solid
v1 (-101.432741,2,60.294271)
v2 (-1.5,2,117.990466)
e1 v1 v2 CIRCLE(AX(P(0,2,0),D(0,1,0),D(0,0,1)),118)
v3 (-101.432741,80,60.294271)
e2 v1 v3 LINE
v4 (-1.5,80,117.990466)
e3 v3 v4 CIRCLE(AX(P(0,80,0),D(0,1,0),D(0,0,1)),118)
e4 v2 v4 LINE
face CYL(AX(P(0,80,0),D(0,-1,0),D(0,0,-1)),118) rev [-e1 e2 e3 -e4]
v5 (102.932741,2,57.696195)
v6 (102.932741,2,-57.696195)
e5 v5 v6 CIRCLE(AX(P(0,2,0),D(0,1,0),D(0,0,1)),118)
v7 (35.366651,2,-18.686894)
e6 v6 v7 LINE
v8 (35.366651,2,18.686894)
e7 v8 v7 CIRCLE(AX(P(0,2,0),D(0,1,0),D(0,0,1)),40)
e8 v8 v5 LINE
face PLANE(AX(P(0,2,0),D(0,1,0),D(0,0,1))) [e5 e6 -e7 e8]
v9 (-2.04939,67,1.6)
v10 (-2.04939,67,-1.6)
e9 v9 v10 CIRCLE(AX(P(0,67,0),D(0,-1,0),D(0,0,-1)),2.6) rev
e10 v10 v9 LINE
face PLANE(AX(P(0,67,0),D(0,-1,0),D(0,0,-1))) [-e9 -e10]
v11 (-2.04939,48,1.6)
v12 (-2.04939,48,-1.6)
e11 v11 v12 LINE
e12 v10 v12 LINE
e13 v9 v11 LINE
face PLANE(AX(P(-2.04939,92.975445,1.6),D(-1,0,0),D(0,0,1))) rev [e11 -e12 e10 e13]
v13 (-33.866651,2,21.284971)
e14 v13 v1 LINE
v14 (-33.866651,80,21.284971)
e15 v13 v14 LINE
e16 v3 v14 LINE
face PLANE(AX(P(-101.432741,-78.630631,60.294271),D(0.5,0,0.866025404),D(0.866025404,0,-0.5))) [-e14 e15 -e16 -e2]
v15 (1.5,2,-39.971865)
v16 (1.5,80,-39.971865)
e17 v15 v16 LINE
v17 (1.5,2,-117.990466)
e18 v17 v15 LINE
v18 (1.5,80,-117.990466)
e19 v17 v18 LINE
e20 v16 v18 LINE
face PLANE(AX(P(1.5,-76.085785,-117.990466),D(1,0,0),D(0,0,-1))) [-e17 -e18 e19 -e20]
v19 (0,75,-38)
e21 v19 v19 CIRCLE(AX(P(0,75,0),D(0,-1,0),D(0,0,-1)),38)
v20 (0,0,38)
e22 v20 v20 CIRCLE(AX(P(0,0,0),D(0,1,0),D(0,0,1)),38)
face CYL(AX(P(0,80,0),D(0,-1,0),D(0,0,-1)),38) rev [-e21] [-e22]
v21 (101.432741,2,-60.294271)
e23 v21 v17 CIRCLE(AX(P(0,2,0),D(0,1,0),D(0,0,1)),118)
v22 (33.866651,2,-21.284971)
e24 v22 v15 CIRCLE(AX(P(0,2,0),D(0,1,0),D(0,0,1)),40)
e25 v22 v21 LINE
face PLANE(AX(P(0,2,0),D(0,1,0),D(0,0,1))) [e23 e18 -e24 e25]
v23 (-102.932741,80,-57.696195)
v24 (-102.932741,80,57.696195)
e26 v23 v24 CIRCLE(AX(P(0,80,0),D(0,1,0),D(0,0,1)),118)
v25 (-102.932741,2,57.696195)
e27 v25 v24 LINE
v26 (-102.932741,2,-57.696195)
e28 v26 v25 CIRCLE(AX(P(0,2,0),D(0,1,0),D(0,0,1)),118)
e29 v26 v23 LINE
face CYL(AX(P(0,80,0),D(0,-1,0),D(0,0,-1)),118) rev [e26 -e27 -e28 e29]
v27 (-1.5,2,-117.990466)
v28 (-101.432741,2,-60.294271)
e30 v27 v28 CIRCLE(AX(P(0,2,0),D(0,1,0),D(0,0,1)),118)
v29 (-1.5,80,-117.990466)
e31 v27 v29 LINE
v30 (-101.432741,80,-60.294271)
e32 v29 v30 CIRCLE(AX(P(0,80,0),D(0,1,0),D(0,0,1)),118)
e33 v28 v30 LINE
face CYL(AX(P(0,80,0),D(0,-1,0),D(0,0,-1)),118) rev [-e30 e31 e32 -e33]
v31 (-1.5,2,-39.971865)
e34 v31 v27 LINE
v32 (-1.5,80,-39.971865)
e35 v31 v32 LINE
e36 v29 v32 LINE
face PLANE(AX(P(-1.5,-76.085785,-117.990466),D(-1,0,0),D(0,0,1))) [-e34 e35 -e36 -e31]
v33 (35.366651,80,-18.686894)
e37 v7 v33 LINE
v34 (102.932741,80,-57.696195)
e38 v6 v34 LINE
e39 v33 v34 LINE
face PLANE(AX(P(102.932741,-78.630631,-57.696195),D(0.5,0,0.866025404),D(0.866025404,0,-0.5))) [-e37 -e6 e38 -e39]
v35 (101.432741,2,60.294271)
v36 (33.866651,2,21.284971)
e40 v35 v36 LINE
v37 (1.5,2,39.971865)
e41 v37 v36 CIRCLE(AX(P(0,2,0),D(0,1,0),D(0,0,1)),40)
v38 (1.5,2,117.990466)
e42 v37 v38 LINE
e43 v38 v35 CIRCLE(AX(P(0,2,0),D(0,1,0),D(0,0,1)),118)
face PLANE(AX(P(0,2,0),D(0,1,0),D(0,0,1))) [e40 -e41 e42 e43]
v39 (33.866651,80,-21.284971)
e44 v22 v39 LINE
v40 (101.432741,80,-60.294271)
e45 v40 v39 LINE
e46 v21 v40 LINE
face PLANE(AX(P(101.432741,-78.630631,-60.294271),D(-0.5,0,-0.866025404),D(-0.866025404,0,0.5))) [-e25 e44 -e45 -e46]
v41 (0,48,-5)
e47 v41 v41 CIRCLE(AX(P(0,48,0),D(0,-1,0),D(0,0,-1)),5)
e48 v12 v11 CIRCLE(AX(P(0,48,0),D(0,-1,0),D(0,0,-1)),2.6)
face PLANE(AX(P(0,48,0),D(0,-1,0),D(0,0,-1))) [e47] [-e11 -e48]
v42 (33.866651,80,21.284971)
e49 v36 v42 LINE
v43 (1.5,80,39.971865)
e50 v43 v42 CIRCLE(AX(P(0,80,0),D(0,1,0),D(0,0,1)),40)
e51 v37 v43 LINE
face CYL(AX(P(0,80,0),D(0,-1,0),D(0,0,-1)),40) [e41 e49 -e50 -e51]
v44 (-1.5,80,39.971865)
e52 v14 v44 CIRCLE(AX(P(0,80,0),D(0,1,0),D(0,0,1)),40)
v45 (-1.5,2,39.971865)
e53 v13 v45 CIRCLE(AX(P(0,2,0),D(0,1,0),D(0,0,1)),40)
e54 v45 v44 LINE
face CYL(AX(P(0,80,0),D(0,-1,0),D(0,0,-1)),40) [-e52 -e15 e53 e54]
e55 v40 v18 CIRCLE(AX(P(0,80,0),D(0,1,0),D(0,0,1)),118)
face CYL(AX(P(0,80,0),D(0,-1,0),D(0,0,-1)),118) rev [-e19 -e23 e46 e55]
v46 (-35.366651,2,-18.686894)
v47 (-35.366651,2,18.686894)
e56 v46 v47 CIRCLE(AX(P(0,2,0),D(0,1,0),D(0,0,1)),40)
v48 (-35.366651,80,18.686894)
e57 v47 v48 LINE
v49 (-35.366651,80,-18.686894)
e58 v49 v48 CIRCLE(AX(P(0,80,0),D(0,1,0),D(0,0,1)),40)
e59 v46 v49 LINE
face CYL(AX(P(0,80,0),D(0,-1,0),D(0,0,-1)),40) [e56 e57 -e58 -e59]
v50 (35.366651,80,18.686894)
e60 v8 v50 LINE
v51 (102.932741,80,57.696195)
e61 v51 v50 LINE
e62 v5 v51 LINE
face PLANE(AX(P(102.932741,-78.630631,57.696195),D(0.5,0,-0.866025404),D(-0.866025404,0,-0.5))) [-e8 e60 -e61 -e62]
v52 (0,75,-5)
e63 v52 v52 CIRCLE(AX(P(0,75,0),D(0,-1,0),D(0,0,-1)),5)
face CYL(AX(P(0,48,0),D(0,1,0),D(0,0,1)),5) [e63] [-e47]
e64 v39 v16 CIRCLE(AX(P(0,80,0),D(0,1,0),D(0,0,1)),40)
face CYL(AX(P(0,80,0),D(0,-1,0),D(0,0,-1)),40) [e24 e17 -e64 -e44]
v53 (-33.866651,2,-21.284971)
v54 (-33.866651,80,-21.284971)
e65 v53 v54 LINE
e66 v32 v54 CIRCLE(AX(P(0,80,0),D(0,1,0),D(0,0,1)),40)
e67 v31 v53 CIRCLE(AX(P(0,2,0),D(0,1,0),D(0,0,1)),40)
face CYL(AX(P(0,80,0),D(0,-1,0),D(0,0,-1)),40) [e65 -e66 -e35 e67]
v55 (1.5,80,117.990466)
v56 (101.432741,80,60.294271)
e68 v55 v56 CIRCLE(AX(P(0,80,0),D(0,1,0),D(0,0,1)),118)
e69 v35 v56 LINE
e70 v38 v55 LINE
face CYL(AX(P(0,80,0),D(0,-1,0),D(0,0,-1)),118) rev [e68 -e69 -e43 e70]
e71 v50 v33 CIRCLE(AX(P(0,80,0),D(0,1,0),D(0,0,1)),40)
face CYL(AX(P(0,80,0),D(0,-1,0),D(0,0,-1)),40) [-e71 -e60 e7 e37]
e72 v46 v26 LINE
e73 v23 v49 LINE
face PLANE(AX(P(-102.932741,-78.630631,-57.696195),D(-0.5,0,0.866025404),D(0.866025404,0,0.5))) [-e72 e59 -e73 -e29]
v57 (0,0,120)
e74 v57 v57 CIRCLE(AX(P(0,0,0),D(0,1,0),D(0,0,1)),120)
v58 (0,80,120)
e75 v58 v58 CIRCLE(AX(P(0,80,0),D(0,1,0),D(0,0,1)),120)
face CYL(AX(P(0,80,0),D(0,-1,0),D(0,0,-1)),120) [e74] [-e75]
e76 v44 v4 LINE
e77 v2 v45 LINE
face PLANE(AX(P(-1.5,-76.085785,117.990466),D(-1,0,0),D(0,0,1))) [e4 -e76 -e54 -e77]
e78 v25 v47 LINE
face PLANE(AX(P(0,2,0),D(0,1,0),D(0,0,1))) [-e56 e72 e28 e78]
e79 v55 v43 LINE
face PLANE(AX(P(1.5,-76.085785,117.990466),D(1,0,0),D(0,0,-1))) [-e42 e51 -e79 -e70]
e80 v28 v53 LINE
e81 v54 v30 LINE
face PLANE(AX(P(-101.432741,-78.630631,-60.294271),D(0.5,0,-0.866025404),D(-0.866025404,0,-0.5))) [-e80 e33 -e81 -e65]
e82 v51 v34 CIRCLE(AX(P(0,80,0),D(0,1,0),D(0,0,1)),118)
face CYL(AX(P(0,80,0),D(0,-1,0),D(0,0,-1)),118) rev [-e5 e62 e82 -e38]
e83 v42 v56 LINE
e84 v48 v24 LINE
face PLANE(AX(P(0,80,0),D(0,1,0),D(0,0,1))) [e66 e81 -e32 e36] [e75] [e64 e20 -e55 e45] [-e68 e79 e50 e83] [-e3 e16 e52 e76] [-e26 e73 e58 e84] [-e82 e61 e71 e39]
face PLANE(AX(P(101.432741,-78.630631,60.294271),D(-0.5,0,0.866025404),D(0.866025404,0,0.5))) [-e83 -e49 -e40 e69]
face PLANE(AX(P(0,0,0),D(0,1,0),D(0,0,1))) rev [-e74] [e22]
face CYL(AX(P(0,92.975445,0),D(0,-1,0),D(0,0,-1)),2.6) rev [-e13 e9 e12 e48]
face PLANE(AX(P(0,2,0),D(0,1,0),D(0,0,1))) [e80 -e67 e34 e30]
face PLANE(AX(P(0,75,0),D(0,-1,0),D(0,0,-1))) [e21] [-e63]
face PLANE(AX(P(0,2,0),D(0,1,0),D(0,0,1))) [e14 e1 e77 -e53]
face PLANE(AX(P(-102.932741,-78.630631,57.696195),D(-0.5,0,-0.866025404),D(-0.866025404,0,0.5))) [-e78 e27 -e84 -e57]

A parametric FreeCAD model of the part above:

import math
import FreeCAD as App
import Part
import Sketcher
from FreeCAD import Vector


def faces_at(feature, points):
    """Names of the faces that lie closest to the given points."""
    faces = feature.Shape.Faces
    near = lambda p: min(range(len(faces)), key=lambda i: faces[i].distToShape(Part.Vertex(*p))[0])
    return sorted({f"Face{near(p) + 1}" for p in points})

doc = App.newDocument("Part")
params = doc.addObject("Spreadsheet::Sheet", "Params")
for row, (alias, value) in enumerate([
    ("sketch1_diameter", "240 mm"),
    ("sketch1_diameter2", "76 mm"),
    ("pad1_length", "80 mm"),
    ("thickness_wall", "2 mm"),
    ("sketch2_radius", "40 mm"),
    ("pad2_length", "78 mm"),
    ("sketch3_diameter", "76 mm"),
    ("pad3_length", "8 mm"),
    ("sketch4_diameter", "10 mm"),
    ("pad4_length", "24 mm"),
    ("sketch5_radius", "2.6 mm"),
    ("sketch5_height", "3.2 mm"),
    ("pocket1_length", "19 mm"),
    ("sketch6_diameter", "76 mm"),
    ("sketch6_diameter2", "10 mm"),
    ("pocket2_length", "3 mm"),
], start=1):
    params.set(f"A{row}", alias)
    params.set(f"B{row}", "=" + value)
    params.setAlias(f"B{row}", alias)

body = doc.addObject("PartDesign::Body", "Body")

sketch1 = body.newObject("Sketcher::SketchObject", "Sketch")
sketch1.AttachmentSupport = (doc.getObject("XZ_Plane"), [""])
sketch1.MapMode = "FlatFace"
sketch1.addGeometry(Part.Circle(Vector(0, 0, 0), Vector(0, 0, 1), 120), False)
sketch1.addGeometry(Part.Circle(Vector(0, 0, 0), Vector(0, 0, 1), 38), False)
sketch1.addConstraint(Sketcher.Constraint("Coincident", 0, 3, -1, 1))
sketch1.addConstraint(Sketcher.Constraint("Coincident", 1, 3, -1, 1))
sketch1.addConstraint(Sketcher.Constraint("Diameter", 0, 240.0))
sketch1.addConstraint(Sketcher.Constraint("Diameter", 1, 76.0))
sketch1.setExpression("Constraints[2]", "Params.sketch1_diameter")
sketch1.setExpression("Constraints[3]", "Params.sketch1_diameter2")
pad1 = body.newObject("PartDesign::Pad", "Pad")
pad1.Profile = sketch1
pad1.setExpression("Length", "Params.pad1_length")
pad1.Reversed = True
doc.recompute()

thickness = body.newObject("PartDesign::Thickness", "Thickness")
thickness.Base = (pad1, faces_at(pad1, [(-48, 80, -48)]))
thickness.setExpression("Value", "Params.thickness_wall")
thickness.Reversed = True
thickness.Join = "Intersection"

sketch2 = body.newObject("Sketcher::SketchObject", "Sketch001")
sketch2.AttachmentSupport = (doc.getObject("XZ_Plane"), [""])
sketch2.MapMode = "FlatFace"
sketch2.AttachmentOffset = App.Placement(Vector(0, 0, -2), App.Rotation())
sketch2.addGeometry(Part.LineSegment(Vector(-1.5, -117.990466, 0), Vector(-1.5, -39.971865, 0)), False)
sketch2.addGeometry(Part.ArcOfCircle(Part.Circle(Vector(0, 0, 0), Vector(0, 0, 1), 40), math.radians(-92.149096), math.radians(-87.850904)), False)
sketch2.addGeometry(Part.LineSegment(Vector(1.5, -39.971865, 0), Vector(1.5, -117.990466, 0)), False)
sketch2.addGeometry(Part.ArcOfCircle(Part.Circle(Vector(0, 0.000006, 0), Vector(0, 0, 1), 118.000006), math.radians(-90.728356), math.radians(-89.271644)), False)
sketch2.addConstraint(Sketcher.Constraint("Coincident", 0, 2, 1, 1))
sketch2.addConstraint(Sketcher.Constraint("Coincident", 1, 2, 2, 1))
sketch2.addConstraint(Sketcher.Constraint("Coincident", 2, 2, 3, 2))
sketch2.addConstraint(Sketcher.Constraint("Coincident", 3, 1, 0, 1))
sketch2.addConstraint(Sketcher.Constraint("Vertical", 0))
sketch2.addConstraint(Sketcher.Constraint("Vertical", 2))
sketch2.addConstraint(Sketcher.Constraint("Coincident", 1, 3, -1, 1))
sketch2.addConstraint(Sketcher.Constraint("Coincident", 3, 3, -1, 1))
sketch2.addConstraint(Sketcher.Constraint("Horizontal", 0, 2, 1, 2))
sketch2.addConstraint(Sketcher.Constraint("Radius", 1, 40.0))
sketch2.addConstraint(Sketcher.Constraint("DistanceX", 0, 2, 1, 2, 3.0))
sketch2.addConstraint(Sketcher.Constraint("DistanceY", 0, 1, 0, 2, 78.018601))
sketch2.setExpression("Constraints[9]", "Params.sketch2_radius")
pad2 = body.newObject("PartDesign::Pad", "Pad001")
pad2.Profile = sketch2
pad2.setExpression("Length", "Params.pad2_length")
pad2.Reversed = True
doc.recompute()

polarpattern = body.newObject("PartDesign::PolarPattern", "PolarPattern")
polarpattern.Originals = [pad2]
polarpattern.Axis = (doc.getObject("Y_Axis"), [""])
polarpattern.Angle = 360
polarpattern.Occurrences = 6
body.Tip = polarpattern

sketch3 = body.newObject("Sketcher::SketchObject", "Sketch002")
sketch3.AttachmentSupport = (doc.getObject("XZ_Plane"), [""])
sketch3.MapMode = "FlatFace"
sketch3.AttachmentOffset = App.Placement(Vector(0, 0, -72), App.Rotation())
sketch3.addGeometry(Part.Circle(Vector(0, 0, 0), Vector(0, 0, 1), 38), False)
sketch3.addConstraint(Sketcher.Constraint("Coincident", 0, 3, -1, 1))
sketch3.addConstraint(Sketcher.Constraint("Diameter", 0, 76.0))
sketch3.setExpression("Constraints[1]", "Params.sketch3_diameter")
pad3 = body.newObject("PartDesign::Pad", "Pad002")
pad3.Profile = sketch3
pad3.setExpression("Length", "Params.pad3_length")
pad3.Reversed = True

sketch4 = body.newObject("Sketcher::SketchObject", "Sketch003")
sketch4.AttachmentSupport = (doc.getObject("XZ_Plane"), [""])
sketch4.MapMode = "FlatFace"
sketch4.AttachmentOffset = App.Placement(Vector(0, 0, -72), App.Rotation())
sketch4.addGeometry(Part.Circle(Vector(0, 0, 0), Vector(0, 0, 1), 5), False)
sketch4.addConstraint(Sketcher.Constraint("Coincident", 0, 3, -1, 1))
sketch4.addConstraint(Sketcher.Constraint("Diameter", 0, 10.0))
sketch4.setExpression("Constraints[1]", "Params.sketch4_diameter")
pad4 = body.newObject("PartDesign::Pad", "Pad003")
pad4.Profile = sketch4
pad4.setExpression("Length", "Params.pad4_length")

sketch5 = body.newObject("Sketcher::SketchObject", "Sketch004")
sketch5.AttachmentSupport = (doc.getObject("XZ_Plane"), [""])
sketch5.MapMode = "FlatFace"
sketch5.AttachmentOffset = App.Placement(Vector(0, 0, -48), App.Rotation())
sketch5.addGeometry(Part.LineSegment(Vector(-2.04939, 1.6, 0), Vector(-2.04939, -1.6, 0)), False)
sketch5.addGeometry(Part.ArcOfCircle(Part.Circle(Vector(0, 0, 0), Vector(0, 0, 1), 2.6), math.radians(-142.020128), math.radians(142.020128)), False)
sketch5.addConstraint(Sketcher.Constraint("Coincident", 0, 1, 1, 2))
sketch5.addConstraint(Sketcher.Constraint("Coincident", 1, 1, 0, 2))
sketch5.addConstraint(Sketcher.Constraint("Vertical", 0))
sketch5.addConstraint(Sketcher.Constraint("Coincident", 1, 3, -1, 1))
sketch5.addConstraint(Sketcher.Constraint("Radius", 1, 2.6))
sketch5.addConstraint(Sketcher.Constraint("DistanceY", 0, 2, 0, 1, 3.2))
sketch5.setExpression("Constraints[4]", "Params.sketch5_radius")
sketch5.setExpression("Constraints[5]", "Params.sketch5_height")
pocket1 = body.newObject("PartDesign::Pocket", "Pocket")
pocket1.Profile = sketch5
pocket1.setExpression("Length", "Params.pocket1_length")

sketch6 = body.newObject("Sketcher::SketchObject", "Sketch005")
sketch6.AttachmentSupport = (doc.getObject("XZ_Plane"), [""])
sketch6.MapMode = "FlatFace"
sketch6.AttachmentOffset = App.Placement(Vector(0, 0, -72), App.Rotation())
sketch6.addGeometry(Part.Circle(Vector(0, 0, 0), Vector(0, 0, 1), 38), False)
sketch6.addGeometry(Part.Circle(Vector(0, 0, 0), Vector(0, 0, 1), 5), False)
sketch6.addConstraint(Sketcher.Constraint("Coincident", 0, 3, -1, 1))
sketch6.addConstraint(Sketcher.Constraint("Coincident", 1, 3, -1, 1))
sketch6.addConstraint(Sketcher.Constraint("Diameter", 0, 76.0))
sketch6.addConstraint(Sketcher.Constraint("Diameter", 1, 10.0))
sketch6.setExpression("Constraints[2]", "Params.sketch6_diameter")
sketch6.setExpression("Constraints[3]", "Params.sketch6_diameter2")
pocket2 = body.newObject("PartDesign::Pocket", "Pocket001")
pocket2.Profile = sketch6
pocket2.setExpression("Length", "Params.pocket2_length")

doc.recompute()
